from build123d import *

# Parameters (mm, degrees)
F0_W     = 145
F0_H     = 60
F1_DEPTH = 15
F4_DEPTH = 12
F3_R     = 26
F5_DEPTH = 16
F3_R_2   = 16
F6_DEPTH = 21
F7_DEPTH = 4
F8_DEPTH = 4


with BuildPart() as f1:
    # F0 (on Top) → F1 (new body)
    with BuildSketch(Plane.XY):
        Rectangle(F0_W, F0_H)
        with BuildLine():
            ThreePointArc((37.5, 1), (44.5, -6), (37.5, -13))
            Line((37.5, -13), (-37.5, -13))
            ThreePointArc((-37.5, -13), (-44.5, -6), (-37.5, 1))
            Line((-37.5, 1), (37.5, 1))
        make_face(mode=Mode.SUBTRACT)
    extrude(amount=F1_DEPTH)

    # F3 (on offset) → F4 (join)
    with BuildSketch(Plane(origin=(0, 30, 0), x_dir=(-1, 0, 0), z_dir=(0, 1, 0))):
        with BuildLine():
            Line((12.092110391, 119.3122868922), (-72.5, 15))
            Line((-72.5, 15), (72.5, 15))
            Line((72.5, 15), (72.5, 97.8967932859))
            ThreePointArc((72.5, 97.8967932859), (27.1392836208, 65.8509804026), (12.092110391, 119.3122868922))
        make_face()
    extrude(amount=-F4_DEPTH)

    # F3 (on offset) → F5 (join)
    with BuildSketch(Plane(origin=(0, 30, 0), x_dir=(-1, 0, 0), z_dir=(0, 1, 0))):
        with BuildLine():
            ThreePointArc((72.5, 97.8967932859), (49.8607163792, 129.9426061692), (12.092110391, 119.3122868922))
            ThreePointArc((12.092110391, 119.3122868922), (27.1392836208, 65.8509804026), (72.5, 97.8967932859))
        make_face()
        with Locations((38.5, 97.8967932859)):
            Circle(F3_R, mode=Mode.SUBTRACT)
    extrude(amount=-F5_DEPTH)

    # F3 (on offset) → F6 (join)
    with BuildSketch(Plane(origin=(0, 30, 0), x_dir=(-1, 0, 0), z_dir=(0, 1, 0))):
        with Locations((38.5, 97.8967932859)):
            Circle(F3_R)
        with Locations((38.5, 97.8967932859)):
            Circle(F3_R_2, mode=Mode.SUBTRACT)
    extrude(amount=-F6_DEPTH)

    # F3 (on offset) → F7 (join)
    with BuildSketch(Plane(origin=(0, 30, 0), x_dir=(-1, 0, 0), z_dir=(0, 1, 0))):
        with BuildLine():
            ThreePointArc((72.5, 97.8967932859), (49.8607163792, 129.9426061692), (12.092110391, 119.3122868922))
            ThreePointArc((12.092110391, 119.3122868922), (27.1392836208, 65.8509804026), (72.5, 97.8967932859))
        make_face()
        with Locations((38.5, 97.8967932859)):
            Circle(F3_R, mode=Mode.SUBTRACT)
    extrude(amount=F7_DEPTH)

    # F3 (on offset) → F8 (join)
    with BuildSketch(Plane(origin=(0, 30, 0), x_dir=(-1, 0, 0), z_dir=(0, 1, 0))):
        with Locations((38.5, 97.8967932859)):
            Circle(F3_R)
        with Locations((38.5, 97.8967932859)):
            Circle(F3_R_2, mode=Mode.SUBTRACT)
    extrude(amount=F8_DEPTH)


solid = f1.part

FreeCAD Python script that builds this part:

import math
import FreeCAD as App
import Part
import Sketcher
from FreeCAD import Vector
Q = App.Units.Quantity

doc = App.newDocument("Part")
body = doc.addObject("PartDesign::Body", "Body")

# Sketch on XY plane
sketch1 = body.newObject("Sketcher::SketchObject", "Sketch")
sketch1.AttachmentSupport = (doc.getObject("XY_Plane"), [""])
sketch1.MapMode = "FlatFace"
sketch1.addGeometry([
    Part.LineSegment(Vector(-72.5, 30, 0), Vector(-72.5, -30, 0)),  # 0
    Part.LineSegment(Vector(-72.5, -30, 0), Vector(72.5, -30, 0)),  # 1
    Part.LineSegment(Vector(72.5, -30, 0), Vector(72.5, 30, 0)),  # 2
    Part.LineSegment(Vector(72.5, 30, 0), Vector(-72.5, 30, 0)),  # 3
    Part.LineSegment(Vector(-37.5, 1, 0), Vector(37.5, 1, 0)),  # 4
    Part.ArcOfCircle(Part.Circle(Vector(37.5, -6, 0), Vector(0, 0, 1), 7), math.radians(-90), math.radians(90)),  # 5
    Part.LineSegment(Vector(37.5, -13, 0), Vector(-37.5, -13, 0)),  # 6
    Part.ArcOfCircle(Part.Circle(Vector(-37.5, -6, 0), Vector(0, 0, 1), 7), math.radians(90), math.radians(270)),  # 7
], False)
sketch1.addConstraint([
    Sketcher.Constraint("Coincident", 0, 2, 1, 1),
    Sketcher.Constraint("Coincident", 1, 2, 2, 1),
    Sketcher.Constraint("Coincident", 2, 2, 3, 1),
    Sketcher.Constraint("Coincident", 3, 2, 0, 1),
    Sketcher.Constraint("Tangent", 4, 2, 5, 2),
    Sketcher.Constraint("Tangent", 5, 1, 6, 1),
    Sketcher.Constraint("Tangent", 6, 2, 7, 2),
    Sketcher.Constraint("Tangent", 7, 1, 4, 1),
    Sketcher.Constraint("Vertical", 0),
    Sketcher.Constraint("Horizontal", 1),
    Sketcher.Constraint("Vertical", 2),
    Sketcher.Constraint("Horizontal", 3),
    Sketcher.Constraint("Horizontal", 4),
    Sketcher.Constraint("Horizontal", 6),
    Sketcher.Constraint("Symmetric", 0, 2, 2, 2, -1, 1),
    Sketcher.Constraint("Radius", 5, Q("7 mm")),
    Sketcher.Constraint("DistanceX", 1, 1, 1, 2, Q("145 mm")),
    Sketcher.Constraint("DistanceX", 4, 1, 4, 2, Q("75 mm")),
    Sketcher.Constraint("DistanceY", 0, 2, 0, 1, Q("60 mm")),
    Sketcher.Constraint("DistanceY", 5, 3, -1, 1, Q("6 mm")),
    Sketcher.Constraint("DistanceX", 0, 2, 7, 3, Q("35 mm")),
])
pad1 = body.newObject("PartDesign::Pad", "Pad")
pad1.Profile = sketch1
pad1.Length = 15

# Sketch on XZ plane
sketch2 = body.newObject("Sketcher::SketchObject", "Sketch001")
sketch2.AttachmentSupport = (doc.getObject("XZ_Plane"), [""])
sketch2.MapMode = "FlatFace"
sketch2.AttachmentOffset = App.Placement(Vector(0, 0, -30), App.Rotation())
sketch2.addGeometry([
    Part.LineSegment(Vector(-12.09211, 119.312287, 0), Vector(72.5, 15, 0)),
    Part.LineSegment(Vector(72.5, 15, 0), Vector(-72.5, 15, 0)),
    Part.LineSegment(Vector(-72.5, 15, 0), Vector(-72.5, 97.896793, 0)),
    Part.ArcOfCircle(Part.Circle(Vector(-38.5, 97.896793, 0), Vector(0, 0, 1), 34), math.radians(180), math.radians(399.040345)),
], False)
sketch2.addConstraint([
    Sketcher.Constraint("Coincident", 0, 2, 1, 1),
    Sketcher.Constraint("Coincident", 1, 2, 2, 1),
    Sketcher.Constraint("Tangent", 2, 2, 3, 1),
    Sketcher.Constraint("Tangent", 3, 2, 0, 1),
    Sketcher.Constraint("Horizontal", 1),
    Sketcher.Constraint("Vertical", 2),
    Sketcher.Constraint("Radius", 3, Q("34 mm")),
    Sketcher.Constraint("DistanceX", 1, 2, 1, 1, Q("145 mm")),
    Sketcher.Constraint("DistanceY", -1, 1, 0, 2, Q("15 mm")),
    Sketcher.Constraint("DistanceX", 3, 3, -1, 1, Q("38.5 mm")),
    Sketcher.Constraint("DistanceY", 2, 1, 2, 2, Q("82.896793 mm")),
])
pad2 = body.newObject("PartDesign::Pad", "Pad001")
pad2.Profile = sketch2
pad2.Length = 12

# Sketch on XZ plane
sketch3 = body.newObject("Sketcher::SketchObject", "Sketch002")
sketch3.AttachmentSupport = (doc.getObject("XZ_Plane"), [""])
sketch3.MapMode = "FlatFace"
sketch3.AttachmentOffset = App.Placement(Vector(0, 0, -30), App.Rotation())
sketch3.addGeometry([
    Part.ArcOfCircle(Part.Circle(Vector(-38.5, 97.896793, 0), Vector(0, 0, 1), 34), math.radians(39.040345), math.radians(180)),
    Part.ArcOfCircle(Part.Circle(Vector(-38.5, 97.896793, 0), Vector(0, 0, 1), 34), math.radians(180), math.radians(399.040345)),
    Part.Circle(Vector(-38.5, 97.896793, 0), Vector(0, 0, 1), 26),
], False)
sketch3.addConstraint([
    Sketcher.Constraint("Tangent", 0, 1, 1, 2),
    Sketcher.Constraint("Coincident", 1, 1, 0, 2),
    Sketcher.Constraint("Coincident", 2, 3, 0, 3),
    Sketcher.Constraint("Horizontal", 2, 3, 1, 1),
    Sketcher.Constraint("Diameter", 2, Q("52 mm")),
    Sketcher.Constraint("Radius", 0, Q("34 mm")),
    Sketcher.Constraint("DistanceX", 0, 3, -1, 1, Q("38.5 mm")),
    Sketcher.Constraint("DistanceX", 0, 1, -1, 1, Q("12.09211 mm")),
    Sketcher.Constraint("DistanceY", -1, 1, 0, 3, Q("97.896793 mm")),
])
pad3 = body.newObject("PartDesign::Pad", "Pad002")
pad3.Profile = sketch3
pad3.Length = 16

# Sketch on XZ plane
sketch4 = body.newObject("Sketcher::SketchObject", "Sketch003")
sketch4.AttachmentSupport = (doc.getObject("XZ_Plane"), [""])
sketch4.MapMode = "FlatFace"
sketch4.AttachmentOffset = App.Placement(Vector(0, 0, -30), App.Rotation())
sketch4.addGeometry([
    Part.Circle(Vector(-38.5, 97.896793, 0), Vector(0, 0, 1), 26),
    Part.Circle(Vector(-38.5, 97.896793, 0), Vector(0, 0, 1), 16),
], False)
sketch4.addConstraint([
    Sketcher.Constraint("Coincident", 1, 3, 0, 3),
    Sketcher.Constraint("Diameter", 0, Q("52 mm")),
    Sketcher.Constraint("Diameter", 1, Q("32 mm")),
    Sketcher.Constraint("DistanceX", 0, 3, -1, 1, Q("38.5 mm")),
    Sketcher.Constraint("DistanceY", -1, 1, 0, 3, Q("97.896793 mm")),
])
pad4 = body.newObject("PartDesign::Pad", "Pad003")
pad4.Profile = sketch4
pad4.Length = 21

# Sketch on XZ plane
sketch5 = body.newObject("Sketcher::SketchObject", "Sketch004")
sketch5.AttachmentSupport = (doc.getObject("XZ_Plane"), [""])
sketch5.MapMode = "FlatFace"
sketch5.AttachmentOffset = App.Placement(Vector(0, 0, -30), App.Rotation())
sketch5.addGeometry([
    Part.ArcOfCircle(Part.Circle(Vector(-38.5, 97.896793, 0), Vector(0, 0, 1), 34), math.radians(39.040345), math.radians(180)),
    Part.ArcOfCircle(Part.Circle(Vector(-38.5, 97.896793, 0), Vector(0, 0, 1), 34), math.radians(180), math.radians(399.040345)),
    Part.Circle(Vector(-38.5, 97.896793, 0), Vector(0, 0, 1), 26),
], False)
sketch5.addConstraint([
    Sketcher.Constraint("Tangent", 0, 1, 1, 2),
    Sketcher.Constraint("Coincident", 1, 1, 0, 2),
    Sketcher.Constraint("Coincident", 2, 3, 0, 3),
    Sketcher.Constraint("Horizontal", 2, 3, 1, 1),
    Sketcher.Constraint("Diameter", 2, Q("52 mm")),
    Sketcher.Constraint("Radius", 0, Q("34 mm")),
    Sketcher.Constraint("DistanceX", 0, 3, -1, 1, Q("38.5 mm")),
    Sketcher.Constraint("DistanceX", 0, 1, -1, 1, Q("12.09211 mm")),
    Sketcher.Constraint("DistanceY", -1, 1, 0, 3, Q("97.896793 mm")),
])
pad5 = body.newObject("PartDesign::Pad", "Pad004")
pad5.Profile = sketch5
pad5.Length = 4
pad5.Reversed = True

# Sketch on XZ plane
sketch6 = body.newObject("Sketcher::SketchObject", "Sketch005")
sketch6.AttachmentSupport = (doc.getObject("XZ_Plane"), [""])
sketch6.MapMode = "FlatFace"
sketch6.AttachmentOffset = App.Placement(Vector(0, 0, -30), App.Rotation())
sketch6.addGeometry([
    Part.Circle(Vector(-38.5, 97.896793, 0), Vector(0, 0, 1), 26),
    Part.Circle(Vector(-38.5, 97.896793, 0), Vector(0, 0, 1), 16),
], False)
sketch6.addConstraint([
    Sketcher.Constraint("Coincident", 1, 3, 0, 3),
    Sketcher.Constraint("Diameter", 0, Q("52 mm")),
    Sketcher.Constraint("Diameter", 1, Q("32 mm")),
    Sketcher.Constraint("DistanceX", 0, 3, -1, 1, Q("38.5 mm")),
    Sketcher.Constraint("DistanceY", -1, 1, 0, 3, Q("97.896793 mm")),
])
pad6 = body.newObject("PartDesign::Pad", "Pad005")
pad6.Profile = sketch6
pad6.Length = 4
pad6.Reversed = True

doc.recompute()
